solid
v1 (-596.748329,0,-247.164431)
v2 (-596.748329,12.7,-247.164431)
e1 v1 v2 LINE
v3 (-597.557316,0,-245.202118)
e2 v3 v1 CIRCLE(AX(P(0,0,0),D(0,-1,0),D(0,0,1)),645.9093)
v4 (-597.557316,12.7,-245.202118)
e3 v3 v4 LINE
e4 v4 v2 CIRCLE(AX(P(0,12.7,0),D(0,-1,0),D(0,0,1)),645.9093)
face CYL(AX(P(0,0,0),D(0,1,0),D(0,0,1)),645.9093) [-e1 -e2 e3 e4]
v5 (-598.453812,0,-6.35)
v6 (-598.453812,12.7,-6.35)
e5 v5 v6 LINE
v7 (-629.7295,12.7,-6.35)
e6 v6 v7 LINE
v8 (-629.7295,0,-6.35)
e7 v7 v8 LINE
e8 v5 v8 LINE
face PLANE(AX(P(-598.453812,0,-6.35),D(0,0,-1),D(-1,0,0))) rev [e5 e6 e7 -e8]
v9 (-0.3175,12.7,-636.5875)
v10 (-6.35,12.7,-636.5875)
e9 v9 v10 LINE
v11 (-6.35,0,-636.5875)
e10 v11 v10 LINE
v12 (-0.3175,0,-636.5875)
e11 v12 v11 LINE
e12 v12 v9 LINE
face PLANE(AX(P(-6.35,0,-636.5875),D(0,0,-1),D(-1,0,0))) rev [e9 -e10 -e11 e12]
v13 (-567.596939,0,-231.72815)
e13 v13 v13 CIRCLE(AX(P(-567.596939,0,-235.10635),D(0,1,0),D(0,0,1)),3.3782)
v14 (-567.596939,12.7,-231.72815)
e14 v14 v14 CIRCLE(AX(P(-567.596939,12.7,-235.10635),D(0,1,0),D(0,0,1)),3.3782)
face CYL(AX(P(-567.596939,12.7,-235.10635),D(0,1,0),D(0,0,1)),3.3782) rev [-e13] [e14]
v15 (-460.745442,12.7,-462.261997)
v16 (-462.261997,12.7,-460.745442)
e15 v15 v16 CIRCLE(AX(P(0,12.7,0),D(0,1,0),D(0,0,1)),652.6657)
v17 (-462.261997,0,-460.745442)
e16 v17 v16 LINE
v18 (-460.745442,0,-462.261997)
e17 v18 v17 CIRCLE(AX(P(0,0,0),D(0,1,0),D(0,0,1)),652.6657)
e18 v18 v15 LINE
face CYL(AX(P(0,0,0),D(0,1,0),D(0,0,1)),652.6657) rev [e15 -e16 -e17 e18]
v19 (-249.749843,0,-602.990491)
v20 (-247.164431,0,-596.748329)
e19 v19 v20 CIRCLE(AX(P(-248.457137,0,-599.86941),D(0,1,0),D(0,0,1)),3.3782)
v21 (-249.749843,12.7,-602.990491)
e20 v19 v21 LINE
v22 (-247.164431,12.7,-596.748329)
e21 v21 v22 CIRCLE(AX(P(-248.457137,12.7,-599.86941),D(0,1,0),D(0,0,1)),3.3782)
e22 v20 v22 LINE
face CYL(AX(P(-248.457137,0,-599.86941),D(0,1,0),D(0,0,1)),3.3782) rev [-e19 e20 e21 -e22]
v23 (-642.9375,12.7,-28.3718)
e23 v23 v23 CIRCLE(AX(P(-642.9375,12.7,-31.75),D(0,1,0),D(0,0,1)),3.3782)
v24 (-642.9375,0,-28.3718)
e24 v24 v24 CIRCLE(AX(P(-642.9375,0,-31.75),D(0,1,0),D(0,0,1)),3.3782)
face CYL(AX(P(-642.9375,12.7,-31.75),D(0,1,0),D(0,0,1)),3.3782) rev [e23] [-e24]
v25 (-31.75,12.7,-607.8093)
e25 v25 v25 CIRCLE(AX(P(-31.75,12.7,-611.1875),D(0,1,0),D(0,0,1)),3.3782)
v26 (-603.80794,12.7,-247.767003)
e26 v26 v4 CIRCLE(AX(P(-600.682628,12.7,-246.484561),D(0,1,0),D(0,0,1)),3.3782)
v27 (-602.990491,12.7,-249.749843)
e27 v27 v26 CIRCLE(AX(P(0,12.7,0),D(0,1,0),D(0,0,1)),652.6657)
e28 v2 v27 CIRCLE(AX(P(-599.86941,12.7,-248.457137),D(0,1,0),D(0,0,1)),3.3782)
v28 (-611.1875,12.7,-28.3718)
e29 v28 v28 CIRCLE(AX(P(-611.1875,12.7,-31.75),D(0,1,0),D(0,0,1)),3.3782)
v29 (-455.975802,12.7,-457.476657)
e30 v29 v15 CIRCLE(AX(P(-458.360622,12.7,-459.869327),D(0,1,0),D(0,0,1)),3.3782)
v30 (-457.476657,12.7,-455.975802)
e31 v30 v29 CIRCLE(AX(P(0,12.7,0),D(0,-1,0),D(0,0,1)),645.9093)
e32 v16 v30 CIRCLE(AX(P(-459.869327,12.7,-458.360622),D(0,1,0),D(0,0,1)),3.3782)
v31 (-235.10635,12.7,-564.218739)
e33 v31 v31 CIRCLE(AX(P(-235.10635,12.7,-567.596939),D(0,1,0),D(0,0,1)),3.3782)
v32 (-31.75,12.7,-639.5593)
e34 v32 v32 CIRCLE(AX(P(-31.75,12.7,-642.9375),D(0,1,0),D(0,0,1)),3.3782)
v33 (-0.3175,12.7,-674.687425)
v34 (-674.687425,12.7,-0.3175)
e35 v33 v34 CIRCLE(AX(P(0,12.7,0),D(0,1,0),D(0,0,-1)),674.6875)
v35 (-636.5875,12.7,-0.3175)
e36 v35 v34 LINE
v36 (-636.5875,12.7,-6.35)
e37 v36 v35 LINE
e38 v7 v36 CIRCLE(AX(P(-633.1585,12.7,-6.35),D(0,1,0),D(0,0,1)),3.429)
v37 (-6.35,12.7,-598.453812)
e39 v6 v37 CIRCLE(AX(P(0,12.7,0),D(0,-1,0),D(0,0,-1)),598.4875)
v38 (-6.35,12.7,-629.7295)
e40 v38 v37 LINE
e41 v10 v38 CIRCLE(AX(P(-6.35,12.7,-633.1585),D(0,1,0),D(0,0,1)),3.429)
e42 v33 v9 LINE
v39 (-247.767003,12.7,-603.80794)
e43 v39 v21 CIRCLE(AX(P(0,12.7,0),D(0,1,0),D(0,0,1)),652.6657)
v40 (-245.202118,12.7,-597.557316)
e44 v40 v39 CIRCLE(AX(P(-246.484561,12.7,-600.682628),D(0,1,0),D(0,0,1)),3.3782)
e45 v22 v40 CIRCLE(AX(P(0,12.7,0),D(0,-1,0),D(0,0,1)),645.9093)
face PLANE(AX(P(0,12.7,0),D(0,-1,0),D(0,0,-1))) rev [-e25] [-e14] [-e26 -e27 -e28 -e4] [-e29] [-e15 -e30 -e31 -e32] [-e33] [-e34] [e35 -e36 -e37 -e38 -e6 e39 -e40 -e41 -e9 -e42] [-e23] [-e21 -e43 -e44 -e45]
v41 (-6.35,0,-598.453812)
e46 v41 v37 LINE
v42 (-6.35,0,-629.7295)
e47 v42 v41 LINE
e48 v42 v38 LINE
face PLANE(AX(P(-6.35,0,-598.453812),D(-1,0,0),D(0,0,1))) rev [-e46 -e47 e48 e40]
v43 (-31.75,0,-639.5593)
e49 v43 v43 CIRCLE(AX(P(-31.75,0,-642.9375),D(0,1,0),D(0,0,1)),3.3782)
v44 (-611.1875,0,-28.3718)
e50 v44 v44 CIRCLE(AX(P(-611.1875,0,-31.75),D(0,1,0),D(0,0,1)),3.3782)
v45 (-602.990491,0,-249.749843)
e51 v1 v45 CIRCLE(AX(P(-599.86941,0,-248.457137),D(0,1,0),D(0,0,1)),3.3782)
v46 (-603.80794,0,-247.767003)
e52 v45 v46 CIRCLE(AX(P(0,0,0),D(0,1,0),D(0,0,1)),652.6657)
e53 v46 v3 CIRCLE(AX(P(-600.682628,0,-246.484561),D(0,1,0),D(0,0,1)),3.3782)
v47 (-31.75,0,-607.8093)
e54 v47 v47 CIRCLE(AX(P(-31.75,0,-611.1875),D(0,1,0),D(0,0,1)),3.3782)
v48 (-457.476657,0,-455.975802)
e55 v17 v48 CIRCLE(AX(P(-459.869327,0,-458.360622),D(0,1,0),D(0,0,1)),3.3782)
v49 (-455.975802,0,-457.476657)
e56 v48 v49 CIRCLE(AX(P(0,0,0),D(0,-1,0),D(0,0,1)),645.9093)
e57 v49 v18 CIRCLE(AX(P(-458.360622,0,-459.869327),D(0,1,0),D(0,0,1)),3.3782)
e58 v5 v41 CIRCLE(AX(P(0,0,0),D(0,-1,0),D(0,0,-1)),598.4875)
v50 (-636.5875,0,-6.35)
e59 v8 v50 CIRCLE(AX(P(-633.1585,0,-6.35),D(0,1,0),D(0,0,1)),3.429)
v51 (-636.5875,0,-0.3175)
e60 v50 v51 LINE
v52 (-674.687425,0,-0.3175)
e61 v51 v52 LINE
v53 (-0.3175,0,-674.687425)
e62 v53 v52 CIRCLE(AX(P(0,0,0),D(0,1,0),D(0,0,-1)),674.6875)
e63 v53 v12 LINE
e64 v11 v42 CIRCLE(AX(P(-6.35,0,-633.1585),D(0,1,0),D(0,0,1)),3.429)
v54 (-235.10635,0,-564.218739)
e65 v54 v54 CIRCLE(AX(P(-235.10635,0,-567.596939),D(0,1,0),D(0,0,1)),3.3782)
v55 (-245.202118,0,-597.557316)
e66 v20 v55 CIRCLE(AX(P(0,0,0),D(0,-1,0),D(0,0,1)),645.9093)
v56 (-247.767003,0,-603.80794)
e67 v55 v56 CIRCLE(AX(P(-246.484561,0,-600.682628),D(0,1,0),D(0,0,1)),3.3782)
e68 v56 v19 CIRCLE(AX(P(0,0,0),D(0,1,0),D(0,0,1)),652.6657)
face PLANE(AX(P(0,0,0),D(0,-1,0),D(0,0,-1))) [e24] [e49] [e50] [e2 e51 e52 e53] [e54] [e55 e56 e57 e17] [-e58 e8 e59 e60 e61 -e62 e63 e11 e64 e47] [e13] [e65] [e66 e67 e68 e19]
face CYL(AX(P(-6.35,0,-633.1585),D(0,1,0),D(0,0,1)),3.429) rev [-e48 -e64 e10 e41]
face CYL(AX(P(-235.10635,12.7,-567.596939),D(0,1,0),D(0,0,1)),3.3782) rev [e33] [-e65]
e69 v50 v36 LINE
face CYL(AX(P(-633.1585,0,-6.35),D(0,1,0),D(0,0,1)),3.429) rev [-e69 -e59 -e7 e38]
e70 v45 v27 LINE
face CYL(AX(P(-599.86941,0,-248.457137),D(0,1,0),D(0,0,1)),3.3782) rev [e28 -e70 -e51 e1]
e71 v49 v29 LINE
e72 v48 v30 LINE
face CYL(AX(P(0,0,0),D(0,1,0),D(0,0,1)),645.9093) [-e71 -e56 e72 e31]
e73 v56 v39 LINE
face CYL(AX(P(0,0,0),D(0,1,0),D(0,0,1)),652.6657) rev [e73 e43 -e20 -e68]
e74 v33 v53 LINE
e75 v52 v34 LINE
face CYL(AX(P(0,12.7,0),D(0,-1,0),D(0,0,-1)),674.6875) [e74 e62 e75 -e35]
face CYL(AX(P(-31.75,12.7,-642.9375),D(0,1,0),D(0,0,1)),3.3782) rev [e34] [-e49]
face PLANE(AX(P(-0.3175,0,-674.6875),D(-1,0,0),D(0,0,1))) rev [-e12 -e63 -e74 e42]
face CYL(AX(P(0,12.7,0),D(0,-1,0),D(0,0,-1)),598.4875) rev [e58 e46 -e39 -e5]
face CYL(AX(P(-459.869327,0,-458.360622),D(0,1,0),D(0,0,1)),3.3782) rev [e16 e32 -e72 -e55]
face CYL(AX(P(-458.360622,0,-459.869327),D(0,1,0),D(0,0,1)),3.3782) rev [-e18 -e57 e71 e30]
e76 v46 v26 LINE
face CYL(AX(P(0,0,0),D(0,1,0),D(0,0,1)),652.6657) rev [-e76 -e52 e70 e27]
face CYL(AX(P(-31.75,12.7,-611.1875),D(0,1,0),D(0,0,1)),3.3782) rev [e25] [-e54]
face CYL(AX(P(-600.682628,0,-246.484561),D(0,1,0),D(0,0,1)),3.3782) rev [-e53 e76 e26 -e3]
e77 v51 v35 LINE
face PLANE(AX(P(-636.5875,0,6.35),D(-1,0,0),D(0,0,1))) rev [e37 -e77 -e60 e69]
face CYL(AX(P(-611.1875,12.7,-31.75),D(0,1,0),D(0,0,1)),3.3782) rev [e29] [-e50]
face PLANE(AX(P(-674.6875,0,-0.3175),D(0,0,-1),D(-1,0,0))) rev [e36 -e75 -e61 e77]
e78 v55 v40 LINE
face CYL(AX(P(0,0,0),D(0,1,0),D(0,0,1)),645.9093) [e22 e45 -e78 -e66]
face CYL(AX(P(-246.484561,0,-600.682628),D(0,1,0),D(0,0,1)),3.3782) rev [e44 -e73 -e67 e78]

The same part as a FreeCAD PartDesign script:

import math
import FreeCAD as App
import Part
import Sketcher

V = App.Vector
Q = App.Units.Quantity


def add_polygon(sketch, points):
    """Adds a closed chain of lines whose ends are joined by coincident constraints."""
    first, n = sketch.GeometryCount, len(points)
    for a, b in zip(points, points[1:] + points[:1]):
        sketch.addGeometry(Part.LineSegment(App.Vector(*a, 0), App.Vector(*b, 0)), False)
    for i in range(n):
        sketch.addConstraint(Sketcher.Constraint("Coincident", first + i, 2, first + (i + 1) % n, 1))

doc = App.newDocument("Part")
body = doc.addObject("PartDesign::Body", "Body")

# Sketch on XZ plane
sketch1 = body.newObject("Sketcher::SketchObject", "Sketch")
sketch1.AttachmentSupport = (doc.getObject("XZ_Plane"), [""])
sketch1.MapMode = "FlatFace"
sketch1.addGeometry([
    Part.LineSegment(V(-674.6875, 0, 0), V(-598.4875, 0, 0)),
    Part.ArcOfCircle(Part.Circle(V(0, 0, 0), V(0, 0, 1), 598.4875), math.radians(180), math.radians(360)),
    Part.LineSegment(V(598.4875, 0, 0), V(674.6875, 0, 0)),
    Part.ArcOfCircle(Part.Circle(V(0, 0, 0), V(0, 0, 1), 674.6875), math.radians(180), math.radians(360)),
], False)
sketch1.addConstraint([
    Sketcher.Constraint("Coincident", 0, 2, 1, 1),
    Sketcher.Constraint("Coincident", 1, 2, 2, 1),
    Sketcher.Constraint("Coincident", 2, 2, 3, 2),
    Sketcher.Constraint("Coincident", 3, 1, 0, 1),
    Sketcher.Constraint("Horizontal", 0),
    Sketcher.Constraint("Horizontal", 2),
    Sketcher.Constraint("Coincident", 1, 3, -1, 1),
    Sketcher.Constraint("Coincident", 3, 3, -1, 1),
    Sketcher.Constraint("PointOnObject", 0, 2, -1),
    Sketcher.Constraint("PointOnObject", 2, 2, -1),
    Sketcher.Constraint("DistanceX", 0, 1, 0, 2, Q("3 in")),
    Sketcher.Constraint("Radius", 1, Q("23.5625 in")),
])
pad1 = body.newObject("PartDesign::Pad", "Pad")
pad1.Profile = sketch1
pad1.Length = Q("0.5 in")
pad1.Reversed = True

# Sketch on XZ plane
sketch2 = body.newObject("Sketcher::SketchObject", "Sketch001")
sketch2.AttachmentSupport = (doc.getObject("XZ_Plane"), [""])
sketch2.MapMode = "FlatFace"
sketch2.AttachmentOffset = App.Placement(V(0, 0, -0.5 * 25.4), App.Rotation())
add_polygon(sketch2, [(-6.35, -636.5875), (-6.35, -598.453812), (6.35, -598.453812), (6.35, -636.5875)])  # lines 0-3
add_polygon(sketch2, [(598.453812, -6.35), (598.453812, 6.35), (636.5875, 6.35), (636.5875, -6.35)])  # lines 4-7
add_polygon(sketch2, [(-6.35, 598.453812), (-6.35, 636.5875), (6.35, 636.5875), (6.35, 598.453812)])  # lines 8-11
add_polygon(sketch2, [(-636.5875, -6.35), (-636.5875, 6.35), (-598.453812, 6.35), (-598.453812, -6.35)])  # lines 12-15
sketch2.addConstraint([
    Sketcher.Constraint("Vertical", 0),
    Sketcher.Constraint("Horizontal", 1),
    Sketcher.Constraint("Vertical", 2),
    Sketcher.Constraint("Horizontal", 3),
    Sketcher.Constraint("Vertical", 4),
    Sketcher.Constraint("Horizontal", 5),
    Sketcher.Constraint("Vertical", 6),
    Sketcher.Constraint("Horizontal", 7),
    Sketcher.Constraint("Vertical", 8),
    Sketcher.Constraint("Horizontal", 9),
    Sketcher.Constraint("Vertical", 10),
    Sketcher.Constraint("Horizontal", 11),
    Sketcher.Constraint("Vertical", 12),
    Sketcher.Constraint("Horizontal", 13),
    Sketcher.Constraint("Vertical", 14),
    Sketcher.Constraint("Horizontal", 15),
    Sketcher.Constraint("Symmetric", 2, 2, 8, 2, -1, 1),
    Sketcher.Constraint("Symmetric", 0, 2, 10, 2, -1, 1),
    Sketcher.Constraint("Symmetric", 6, 2, 12, 2, -1, 1),
    Sketcher.Constraint("Symmetric", 4, 2, 14, 2, -1, 1),
    Sketcher.Constraint("Horizontal", 5, 2, 12, 2),
    Sketcher.Constraint("Vertical", 3, 2, 8, 2),
    Sketcher.Constraint("Equal", 15, 0),
    Sketcher.Constraint("Equal", 11, 4),
    Sketcher.Constraint("DistanceX", 1, 1, 1, 2, Q("0.5 in")),
    Sketcher.Constraint("DistanceY", 2, 2, -1, 1, Q("25.0625 in")),
    Sketcher.Constraint("DistanceX", -1, 1, 5, 2, Q("25.0625 in")),
    Sketcher.Constraint("DistanceX", 5, 1, 5, 2, 38.133688),
])
pocket1 = body.newObject("PartDesign::Pocket", "Pocket")
pocket1.Profile = sketch2
pocket1.Type = "ThroughAll"
pocket1.Reversed = True

# Sketch on XZ plane
sketch3 = body.newObject("Sketcher::SketchObject", "Sketch002")
sketch3.AttachmentSupport = (doc.getObject("XZ_Plane"), [""])
sketch3.MapMode = "FlatFace"
sketch3.AttachmentOffset = App.Placement(V(0, 0, -0.5 * 25.4), App.Rotation())
sketch3.addGeometry([
    Part.Circle(V(-6.35, -633.1585, 0), V(0, 0, 1), 3.429),
    Part.Circle(V(-633.1585, -6.35, 0), V(0, 0, 1), 3.429),
    Part.Circle(V(6.35, -633.1585, 0), V(0, 0, 1), 3.429),
    Part.Circle(V(633.1585, -6.35, 0), V(0, 0, 1), 3.429),
], False)
sketch3.addConstraint([
    Sketcher.Constraint("Equal", 0, 1),
    Sketcher.Constraint("Equal", 1, 2),
    Sketcher.Constraint("Equal", 2, 3),
    Sketcher.Constraint("Symmetric", 0, 3, 2, 3, -2),
    Sketcher.Constraint("Symmetric", 1, 3, 3, 3, -2),
    Sketcher.Constraint("Diameter", 0, Q("0.27 in")),
    Sketcher.Constraint("DistanceX", 0, 3, 2, 3, Q("0.5 in")),
    Sketcher.Constraint("DistanceY", 1, 3, -1, 1, Q("0.25 in")),
    Sketcher.Constraint("DistanceX", 1, 3, 3, 3, Q("49.855 in")),
    Sketcher.Constraint("DistanceY", 0, 3, -1, 1, Q("24.9275 in")),
])
pocket2 = body.newObject("PartDesign::Pocket", "Pocket001")
pocket2.Profile = sketch3
pocket2.Type = "ThroughAll"
pocket2.Reversed = True

# Sketch on XZ plane
sketch4 = body.newObject("Sketcher::SketchObject", "Sketch003")
sketch4.AttachmentSupport = (doc.getObject("XZ_Plane"), [""])
sketch4.MapMode = "FlatFace"
sketch4.AttachmentOffset = App.Placement(V(0, 0, -0.5 * 25.4), App.Rotation())
sketch4.addGeometry([
    Part.Circle(V(-31.75, -642.9375, 0), V(0, 0, 1), 3.3782),  # 0
    Part.Circle(V(-31.75, -611.1875, 0), V(0, 0, 1), 3.3782),  # 1
    Part.Circle(V(-611.1875, -31.75, 0), V(0, 0, 1), 3.3782),  # 2
    Part.Circle(V(-642.9375, -31.75, 0), V(0, 0, 1), 3.3782),  # 3
    Part.Circle(V(-567.596939, -235.10635, 0), V(0, 0, 1), 3.3782),  # 4
    Part.Circle(V(-235.10635, -567.596939, 0), V(0, 0, 1), 3.3782),  # 5
], False)
sketch4.addConstraint([
    Sketcher.Constraint("Equal", 0, 1),
    Sketcher.Constraint("Equal", 1, 2),
    Sketcher.Constraint("Equal", 2, 3),
    Sketcher.Constraint("Equal", 3, 4),
    Sketcher.Constraint("Equal", 4, 5),
    Sketcher.Constraint("Horizontal", 2, 3, 3, 3),
    Sketcher.Constraint("Vertical", 0, 3, 1, 3),
    Sketcher.Constraint("Diameter", 0, Q("0.266 in")),
    Sketcher.Constraint("DistanceX", 0, 3, -1, 1, Q("1.25 in")),
    Sketcher.Constraint("DistanceY", 2, 3, -1, 1, Q("1.25 in")),
    Sketcher.Constraint("DistanceY", 0, 3, 1, 3, Q("1.25 in")),
    Sketcher.Constraint("DistanceX", 3, 3, 2, 3, Q("1.25 in")),
    Sketcher.Constraint("DistanceY", 0, 3, -1, 1, Q("25.3125 in")),
    Sketcher.Constraint("DistanceX", 2, 3, -1, 1, Q("24.0625 in")),
    Sketcher.Constraint("DistanceX", 4, 3, -1, 1, 567.596939),
    Sketcher.Constraint("DistanceY", 4, 3, -1, 1, 235.10635),
    Sketcher.Constraint("DistanceX", 5, 3, -1, 1, 235.10635),
    Sketcher.Constraint("DistanceY", 5, 3, -1, 1, 567.596939),
])
doc.recompute()
hole = body.newObject("PartDesign::Hole", "Hole")
hole.Profile = sketch4
hole.ThreadType = "None"
hole.Diameter = Q("0.266 in")
hole.DepthType = "ThroughAll"
hole.Reversed = True

# Sketch on XZ plane
sketch5 = body.newObject("Sketcher::SketchObject", "Sketch004")
sketch5.AttachmentSupport = (doc.getObject("XZ_Plane"), [""])
sketch5.MapMode = "FlatFace"
sketch5.AttachmentOffset = App.Placement(V(0, 0, -0.5 * 25.4), App.Rotation())
add_polygon(sketch5, [(0, -674.6875), (0, 0), (674.6875, 0), (674.6875, -674.6875)])  # lines 0-3
sketch5.addConstraint([
    Sketcher.Constraint("Vertical", 0),
    Sketcher.Constraint("Horizontal", 1),
    Sketcher.Constraint("Vertical", 2),
    Sketcher.Constraint("Horizontal", 3),
    Sketcher.Constraint("Coincident", 0, 2, -1, 1),
    Sketcher.Constraint("Equal", 3, 0),
    Sketcher.Constraint("DistanceX", 1, 1, 1, 2, Q("26.5625 in")),
])
pocket3 = body.newObject("PartDesign::Pocket", "Pocket002")
pocket3.Profile = sketch5
pocket3.Type = "ThroughAll"
pocket3.Reversed = True

# Sketch on XZ plane
sketch6 = body.newObject("Sketcher::SketchObject", "Sketch005")
sketch6.AttachmentSupport = (doc.getObject("XZ_Plane"), [""])
sketch6.MapMode = "FlatFace"
sketch6.AttachmentOffset = App.Placement(V(0, 0, -0.5 * 25.4), App.Rotation())
add_polygon(sketch6, [(-0.3175, -674.6875), (-0.3175, -636.5875), (0, -636.5875), (0, -674.6875)])  # lines 0-3
add_polygon(sketch6, [(-674.6875, -0.3175), (-674.6875, 0), (-636.5875, 0), (-636.5875, -0.3175)])  # lines 4-7
sketch6.addConstraint([
    Sketcher.Constraint("Vertical", 0),
    Sketcher.Constraint("Horizontal", 1),
    Sketcher.Constraint("Vertical", 2),
    Sketcher.Constraint("Horizontal", 3),
    Sketcher.Constraint("Vertical", 4),
    Sketcher.Constraint("Horizontal", 5),
    Sketcher.Constraint("Vertical", 6),
    Sketcher.Constraint("Horizontal", 7),
    Sketcher.Constraint("PointOnObject", 1, 2, -2),
    Sketcher.Constraint("PointOnObject", 4, 2, -1),
    Sketcher.Constraint("Equal", 7, 0),
    Sketcher.Constraint("Equal", 3, 4),
    Sketcher.Constraint("DistanceX", 5, 1, 5, 2, Q("1.5 in")),
    Sketcher.Constraint("DistanceX", 4, 2, 0, 2, Q("26.55 in")),
    Sketcher.Constraint("DistanceY", 0, 2, 6, 2, Q("25.05 in")),
    Sketcher.Constraint("DistanceX", 1, 1, 1, 2, Q("0.0125 in")),
])
pocket4 = body.newObject("PartDesign::Pocket", "Pocket003")
pocket4.Profile = sketch6
pocket4.Type = "ThroughAll"
pocket4.Reversed = True

# Sketch on XZ plane
sketch7 = body.newObject("Sketcher::SketchObject", "Sketch006")
sketch7.AttachmentSupport = (doc.getObject("XZ_Plane"), [""])
sketch7.MapMode = "FlatFace"
sketch7.AttachmentOffset = App.Placement(V(0, 0, -0.5 * 25.4), App.Rotation())
sketch7.addGeometry([
    Part.ArcOfCircle(Part.Circle(V(0.00002, 0.000008, 0), V(0, 0, 1), 652.665722), math.radians(-157.689659), math.radians(-157.501378)),  # 0
    Part.ArcOfCircle(Part.Circle(V(-600.682628, -246.484561, 0), V(0, 0, 1), 3.3782), math.radians(22.310341), math.radians(202.310341)),  # 1
    Part.ArcOfCircle(Part.Circle(V(0.000214, 0.000088, 0), V(0, 0, 1), 645.909531), math.radians(-157.689659), math.radians(-157.501379)),  # 2
    Part.ArcOfCircle(Part.Circle(V(-599.86941, -248.457137, 0), V(0, 0, 1), 3.3782), math.radians(-157.501379), math.radians(22.498622)),  # 3
    Part.ArcOfCircle(Part.Circle(V(0.0001, 0.0001, 0), V(0, 0, 1), 652.665841), math.radians(-135.09414), math.radians(-134.90586)),  # 4
    Part.ArcOfCircle(Part.Circle(V(-459.869327, -458.360622, 0), V(0, 0, 1), 3.3782), math.radians(44.90586), math.radians(224.90586)),  # 5
    Part.ArcOfCircle(Part.Circle(V(0.00029, 0.00029, 0), V(0, 0, 1), 645.909711), math.radians(-135.09414), math.radians(-134.90586)),  # 6
    Part.ArcOfCircle(Part.Circle(V(-458.360622, -459.869327, 0), V(0, 0, 1), 3.3782), math.radians(-134.90586), math.radians(45.09414)),  # 7
    Part.ArcOfCircle(Part.Circle(V(0.000008, 0.00002, 0), V(0, 0, 1), 652.665722), math.radians(-112.498622), math.radians(-112.310341)),  # 8
    Part.ArcOfCircle(Part.Circle(V(-248.457137, -599.86941, 0), V(0, 0, 1), 3.3782), math.radians(67.501378), math.radians(247.501379)),  # 9
    Part.ArcOfCircle(Part.Circle(V(0.000088, 0.000214, 0), V(0, 0, 1), 645.909531), math.radians(-112.498621), math.radians(-112.310341)),  # 10
    Part.ArcOfCircle(Part.Circle(V(-246.484561, -600.682628, 0), V(0, 0, 1), 3.3782), math.radians(-112.310341), math.radians(67.689659)),  # 11
], False)
sketch7.addConstraint([
    Sketcher.Constraint("Tangent", 0, 1, 1, 2),
    Sketcher.Constraint("Tangent", 1, 1, 2, 1),
    Sketcher.Constraint("Tangent", 2, 2, 3, 2),
    Sketcher.Constraint("Tangent", 3, 1, 0, 2),
    Sketcher.Constraint("Tangent", 4, 1, 5, 2),
    Sketcher.Constraint("Tangent", 5, 1, 6, 1),
    Sketcher.Constraint("Tangent", 6, 2, 7, 2),
    Sketcher.Constraint("Tangent", 7, 1, 4, 2),
    Sketcher.Constraint("Tangent", 8, 1, 9, 2),
    Sketcher.Constraint("Tangent", 9, 1, 10, 1),
    Sketcher.Constraint("Tangent", 10, 2, 11, 2),
    Sketcher.Constraint("Tangent", 11, 1, 8, 2),
    Sketcher.Constraint("Equal", 3, 5),
    Sketcher.Constraint("Equal", 0, 8),
    Sketcher.Constraint("Equal", 7, 9),
    Sketcher.Constraint("Equal", 2, 10),
    Sketcher.Constraint("Radius", 1, Q("0.133 in")),
    Sketcher.Constraint("Radius", 3, Q("0.133 in")),
    Sketcher.Constraint("Radius", 7, Q("0.133 in")),
    Sketcher.Constraint("Radius", 11, Q("0.133 in")),
    Sketcher.Constraint("Radius", 0, 652.665722),
    Sketcher.Constraint("Radius", 2, 645.909531),
    Sketcher.Constraint("Radius", 4, 652.665841),
    Sketcher.Constraint("Radius", 6, 645.909711),
    Sketcher.Constraint("DistanceX", 5, 3, 2, 3, Q("18.1051 in")),
    Sketcher.Constraint("DistanceX", 1, 3, 5, 3, 140.813301),
    Sketcher.Constraint("DistanceX", 3, 3, 6, 3, 599.8697),
    Sketcher.Constraint("DistanceY", 11, 3, 7, 3, 140.813301),
    Sketcher.Constraint("DistanceY", 4, 1, 3, 1, 210.995599),
    Sketcher.Constraint("DistanceY", 11, 3, 9, 1, 3.934299),
    Sketcher.Constraint("DistanceY", 1, 3, -1, 1, 246.484561),
    Sketcher.Constraint("DistanceX", 3, 3, -1, 1, 599.86941),
    Sketcher.Constraint("DistanceY", -1, 1, 6, 3, 0.00029),
    Sketcher.Constraint("DistanceY", 9, 3, -1, 1, 599.86941),
    Sketcher.Constraint("DistanceX", 11, 3, -1, 1, 246.484561),
    Sketcher.Constraint("DistanceX", 8, 3, 6, 3, 0.000282),
])
pocket5 = body.newObject("PartDesign::Pocket", "Pocket004")
pocket5.Profile = sketch7
pocket5.Type = "ThroughAll"
pocket5.Reversed = True

doc.recompute()
